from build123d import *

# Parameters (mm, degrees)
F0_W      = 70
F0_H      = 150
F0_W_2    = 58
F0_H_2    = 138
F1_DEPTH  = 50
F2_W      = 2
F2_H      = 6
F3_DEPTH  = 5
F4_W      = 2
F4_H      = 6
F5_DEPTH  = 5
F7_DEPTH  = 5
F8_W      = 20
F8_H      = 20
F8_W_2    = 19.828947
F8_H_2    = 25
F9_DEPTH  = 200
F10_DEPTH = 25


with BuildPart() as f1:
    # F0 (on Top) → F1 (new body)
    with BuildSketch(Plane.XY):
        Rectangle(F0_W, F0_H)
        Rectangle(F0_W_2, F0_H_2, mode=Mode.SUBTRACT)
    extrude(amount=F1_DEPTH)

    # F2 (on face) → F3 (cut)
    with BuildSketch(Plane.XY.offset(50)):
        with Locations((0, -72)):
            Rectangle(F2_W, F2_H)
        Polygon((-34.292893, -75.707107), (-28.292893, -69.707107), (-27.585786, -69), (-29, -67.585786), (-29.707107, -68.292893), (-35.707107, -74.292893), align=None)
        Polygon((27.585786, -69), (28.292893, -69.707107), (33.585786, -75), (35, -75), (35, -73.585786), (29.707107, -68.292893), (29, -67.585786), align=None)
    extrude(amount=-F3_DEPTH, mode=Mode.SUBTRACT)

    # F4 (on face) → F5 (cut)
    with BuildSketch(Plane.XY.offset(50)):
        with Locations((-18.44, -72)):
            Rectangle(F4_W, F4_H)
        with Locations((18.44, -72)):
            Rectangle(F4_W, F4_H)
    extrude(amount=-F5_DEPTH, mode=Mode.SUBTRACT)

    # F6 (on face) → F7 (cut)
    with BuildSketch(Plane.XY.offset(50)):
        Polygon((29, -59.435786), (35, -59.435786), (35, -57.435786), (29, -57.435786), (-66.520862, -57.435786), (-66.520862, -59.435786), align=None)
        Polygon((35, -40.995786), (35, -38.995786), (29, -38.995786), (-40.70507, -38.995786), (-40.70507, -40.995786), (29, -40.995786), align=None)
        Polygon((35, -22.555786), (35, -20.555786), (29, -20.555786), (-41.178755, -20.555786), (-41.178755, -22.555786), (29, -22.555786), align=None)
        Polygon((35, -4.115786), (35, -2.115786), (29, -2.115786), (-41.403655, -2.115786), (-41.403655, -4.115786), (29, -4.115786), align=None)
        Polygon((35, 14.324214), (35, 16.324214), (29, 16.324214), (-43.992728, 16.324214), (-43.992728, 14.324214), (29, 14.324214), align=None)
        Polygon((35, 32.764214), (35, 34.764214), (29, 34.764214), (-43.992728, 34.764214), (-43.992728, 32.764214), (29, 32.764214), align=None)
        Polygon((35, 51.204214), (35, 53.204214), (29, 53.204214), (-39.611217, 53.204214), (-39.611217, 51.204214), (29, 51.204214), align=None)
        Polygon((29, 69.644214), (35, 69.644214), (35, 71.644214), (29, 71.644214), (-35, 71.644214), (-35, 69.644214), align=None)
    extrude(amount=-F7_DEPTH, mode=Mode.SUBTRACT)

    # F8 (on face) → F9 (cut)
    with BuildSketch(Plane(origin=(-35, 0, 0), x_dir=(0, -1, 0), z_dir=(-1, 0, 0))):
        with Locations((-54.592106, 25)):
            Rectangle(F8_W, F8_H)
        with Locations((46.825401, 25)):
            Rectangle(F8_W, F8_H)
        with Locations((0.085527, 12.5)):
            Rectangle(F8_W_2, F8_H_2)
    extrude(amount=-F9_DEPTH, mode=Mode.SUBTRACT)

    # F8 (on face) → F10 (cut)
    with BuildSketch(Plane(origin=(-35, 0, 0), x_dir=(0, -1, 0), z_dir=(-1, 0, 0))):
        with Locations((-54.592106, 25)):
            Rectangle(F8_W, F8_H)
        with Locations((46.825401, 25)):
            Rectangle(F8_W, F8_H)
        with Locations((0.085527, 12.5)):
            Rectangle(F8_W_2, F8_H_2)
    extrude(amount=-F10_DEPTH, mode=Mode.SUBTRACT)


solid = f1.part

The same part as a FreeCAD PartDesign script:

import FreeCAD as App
import Part
import Sketcher
from FreeCAD import Vector


def add_polygon(sketch, points):
    """Adds a closed chain of lines whose ends are joined by coincident constraints."""
    first, n = sketch.GeometryCount, len(points)
    for a, b in zip(points, points[1:] + points[:1]):
        sketch.addGeometry(Part.LineSegment(App.Vector(*a, 0), App.Vector(*b, 0)), False)
    for i in range(n):
        sketch.addConstraint(Sketcher.Constraint("Coincident", first + i, 2, first + (i + 1) % n, 1))

doc = App.newDocument("Part")
body = doc.addObject("PartDesign::Body", "Body")

# Sketch on XY plane
sketch1 = doc.addObject("Sketcher::SketchObject", "Sketch")
body.addObject(sketch1)
sketch1.AttachmentSupport = (doc.XY_Plane, [""])
sketch1.MapMode = "FlatFace"
add_polygon(sketch1, [(-35, 75), (-35, -75), (35, -75), (35, 75)])  # lines 0-3
add_polygon(sketch1, [(29, -69), (-29, -69), (-29, 69), (29, 69)])  # lines 4-7
sketch1.addConstraint(Sketcher.Constraint("Vertical", 0))
sketch1.addConstraint(Sketcher.Constraint("Horizontal", 1))
sketch1.addConstraint(Sketcher.Constraint("Vertical", 2))
sketch1.addConstraint(Sketcher.Constraint("Horizontal", 3))
sketch1.addConstraint(Sketcher.Constraint("Horizontal", 4))
sketch1.addConstraint(Sketcher.Constraint("Vertical", 5))
sketch1.addConstraint(Sketcher.Constraint("Horizontal", 6))
sketch1.addConstraint(Sketcher.Constraint("Vertical", 7))
sketch1.addConstraint(Sketcher.Constraint("Symmetric", 0, 2, 2, 2, -1, 1))
sketch1.addConstraint(Sketcher.Constraint("Symmetric", 4, 2, 6, 2, -1, 1))
sketch1.addConstraint(Sketcher.Constraint("DistanceX", 1, 1, 1, 2, 70.0))
sketch1.addConstraint(Sketcher.Constraint("DistanceX", 4, 2, 4, 1, 58.0))
sketch1.addConstraint(Sketcher.Constraint("DistanceY", 0, 2, 0, 1, 150.0))
sketch1.addConstraint(Sketcher.Constraint("DistanceY", 5, 1, 5, 2, 138.0))
pad1 = doc.addObject("PartDesign::Pad", "Pad")
body.addObject(pad1)
pad1.Profile = sketch1
pad1.Length = 50

# Sketch on XY plane
sketch2 = doc.addObject("Sketcher::SketchObject", "Sketch001")
body.addObject(sketch2)
sketch2.AttachmentSupport = (doc.XY_Plane, [""])
sketch2.MapMode = "FlatFace"
sketch2.AttachmentOffset = App.Placement(Vector(0, 0, 50), App.Rotation())
add_polygon(sketch2, [(-1, -69), (-1, -75), (1, -75), (1, -69)])  # lines 0-3
add_polygon(sketch2, [(-34.3, -75.7), (-27.6, -69), (-29, -67.6), (-35.7, -74.3)])  # lines 4-7
add_polygon(sketch2, [(27.6, -69), (33.6, -75), (35, -75), (35, -73.6), (29, -67.6)])  # lines 8-12
sketch2.addConstraint(Sketcher.Constraint("Vertical", 0))
sketch2.addConstraint(Sketcher.Constraint("Horizontal", 1))
sketch2.addConstraint(Sketcher.Constraint("Vertical", 2))
sketch2.addConstraint(Sketcher.Constraint("Horizontal", 3))
sketch2.addConstraint(Sketcher.Constraint("Horizontal", 9))
sketch2.addConstraint(Sketcher.Constraint("Vertical", 10))
sketch2.addConstraint(Sketcher.Constraint("Symmetric", 5, 2, 11, 2, -2))
sketch2.addConstraint(Sketcher.Constraint("Symmetric", 4, 2, 12, 2, -2))
sketch2.addConstraint(Sketcher.Constraint("Perpendicular", 4, 5))
sketch2.addConstraint(Sketcher.Constraint("Perpendicular", 5, 6))
sketch2.addConstraint(Sketcher.Constraint("Perpendicular", 6, 7))
sketch2.addConstraint(Sketcher.Constraint("Parallel", 7, 8))
sketch2.addConstraint(Sketcher.Constraint("Parallel", 8, 11))
sketch2.addConstraint(Sketcher.Constraint("Perpendicular", 11, 12))
sketch2.addConstraint(Sketcher.Constraint("Horizontal", 3, 2, 4, 2))
sketch2.addConstraint(Sketcher.Constraint("Horizontal", 1, 2, 8, 2))
sketch2.addConstraint(Sketcher.Constraint("Equal", 9, 10))
sketch2.addConstraint(Sketcher.Constraint("DistanceX", 1, 1, 1, 2, 2.0))
sketch2.addConstraint(Sketcher.Constraint("DistanceY", 0, 2, 0, 1, 6.0))
sketch2.addConstraint(Sketcher.Constraint("Distance", 5, 2.000001))
sketch2.addConstraint(Sketcher.Constraint("DistanceX", 0, 2, -1, 1, 1.0))
sketch2.addConstraint(Sketcher.Constraint("DistanceY", 0, 2, -1, 1, 75.0))
sketch2.addConstraint(Sketcher.Constraint("DistanceX", 5, 2, -1, 1, 29.0))
sketch2.addConstraint(Sketcher.Constraint("Distance", 4, 9.485282))
pocket1 = doc.addObject("PartDesign::Pocket", "Pocket")
body.addObject(pocket1)
pocket1.Profile = sketch2
pocket1.Length = 5

# Sketch on XY plane
sketch3 = doc.addObject("Sketcher::SketchObject", "Sketch002")
body.addObject(sketch3)
sketch3.AttachmentSupport = (doc.XY_Plane, [""])
sketch3.MapMode = "FlatFace"
sketch3.AttachmentOffset = App.Placement(Vector(0, 0, 50), App.Rotation())
add_polygon(sketch3, [(-19.4, -69), (-19.4, -75), (-17.4, -75), (-17.4, -69)])  # lines 0-3
add_polygon(sketch3, [(17.4, -69), (17.4, -75), (19.4, -75), (19.4, -69)])  # lines 4-7
sketch3.addConstraint(Sketcher.Constraint("Vertical", 0))
sketch3.addConstraint(Sketcher.Constraint("Horizontal", 1))
sketch3.addConstraint(Sketcher.Constraint("Vertical", 2))
sketch3.addConstraint(Sketcher.Constraint("Horizontal", 3))
sketch3.addConstraint(Sketcher.Constraint("Vertical", 4))
sketch3.addConstraint(Sketcher.Constraint("Horizontal", 5))
sketch3.addConstraint(Sketcher.Constraint("Vertical", 6))
sketch3.addConstraint(Sketcher.Constraint("Horizontal", 7))
sketch3.addConstraint(Sketcher.Constraint("Symmetric", 1, 2, 4, 2, -2))
sketch3.addConstraint(Sketcher.Constraint("Symmetric", 3, 2, 6, 2, -2))
sketch3.addConstraint(Sketcher.Constraint("DistanceX", 1, 1, 1, 2, 2.0))
sketch3.addConstraint(Sketcher.Constraint("DistanceY", 0, 2, 0, 1, 6.0))
sketch3.addConstraint(Sketcher.Constraint("DistanceY", 0, 2, -1, 1, 75.0))
sketch3.addConstraint(Sketcher.Constraint("DistanceX", 0, 2, -1, 1, 19.44))
pocket2 = doc.addObject("PartDesign::Pocket", "Pocket001")
body.addObject(pocket2)
pocket2.Profile = sketch3
pocket2.Length = 5

# Sketch on XY plane
sketch4 = doc.addObject("Sketcher::SketchObject", "Sketch003")
body.addObject(sketch4)
sketch4.AttachmentSupport = (doc.XY_Plane, [""])
sketch4.MapMode = "FlatFace"
sketch4.AttachmentOffset = App.Placement(Vector(0, 0, 50), App.Rotation())
add_polygon(sketch4, [(35, -59.4), (35, -57.4), (-66.5, -57.4), (-66.5, -59.4)])  # lines 0-3
add_polygon(sketch4, [(35, -41), (35, -39), (-40.7, -39), (-40.7, -41)])  # lines 4-7
add_polygon(sketch4, [(35, -22.6), (35, -20.6), (-41.2, -20.6), (-41.2, -22.6)])  # lines 8-11
add_polygon(sketch4, [(35, -4.1), (35, -2.1), (-41.4, -2.1), (-41.4, -4.1)])  # lines 12-15
add_polygon(sketch4, [(35, 14.3), (35, 16.3), (-44, 16.3), (-44, 14.3)])  # lines 16-19
add_polygon(sketch4, [(35, 32.8), (35, 34.8), (-44, 34.8), (-44, 32.8)])  # lines 20-23
add_polygon(sketch4, [(35, 51.2), (35, 53.2), (-39.6, 53.2), (-39.6, 51.2)])  # lines 24-27
add_polygon(sketch4, [(35, 69.6), (35, 71.6), (-35, 71.6), (-35, 69.6)])  # lines 28-31
sketch4.addConstraint(Sketcher.Constraint("Vertical", 0))
sketch4.addConstraint(Sketcher.Constraint("Horizontal", 1))
sketch4.addConstraint(Sketcher.Constraint("Vertical", 2))
sketch4.addConstraint(Sketcher.Constraint("Horizontal", 3))
sketch4.addConstraint(Sketcher.Constraint("Vertical", 4))
sketch4.addConstraint(Sketcher.Constraint("Horizontal", 5))
sketch4.addConstraint(Sketcher.Constraint("Vertical", 6))
sketch4.addConstraint(Sketcher.Constraint("Horizontal", 7))
sketch4.addConstraint(Sketcher.Constraint("Vertical", 8))
sketch4.addConstraint(Sketcher.Constraint("Horizontal", 9))
sketch4.addConstraint(Sketcher.Constraint("Vertical", 10))
sketch4.addConstraint(Sketcher.Constraint("Horizontal", 11))
sketch4.addConstraint(Sketcher.Constraint("Vertical", 12))
sketch4.addConstraint(Sketcher.Constraint("Horizontal", 13))
sketch4.addConstraint(Sketcher.Constraint("Vertical", 14))
sketch4.addConstraint(Sketcher.Constraint("Horizontal", 15))
sketch4.addConstraint(Sketcher.Constraint("Vertical", 16))
sketch4.addConstraint(Sketcher.Constraint("Horizontal", 17))
sketch4.addConstraint(Sketcher.Constraint("Vertical", 18))
sketch4.addConstraint(Sketcher.Constraint("Horizontal", 19))
sketch4.addConstraint(Sketcher.Constraint("Vertical", 20))
sketch4.addConstraint(Sketcher.Constraint("Horizontal", 21))
sketch4.addConstraint(Sketcher.Constraint("Vertical", 22))
sketch4.addConstraint(Sketcher.Constraint("Horizontal", 23))
sketch4.addConstraint(Sketcher.Constraint("Vertical", 24))
sketch4.addConstraint(Sketcher.Constraint("Horizontal", 25))
sketch4.addConstraint(Sketcher.Constraint("Vertical", 26))
sketch4.addConstraint(Sketcher.Constraint("Horizontal", 27))
sketch4.addConstraint(Sketcher.Constraint("Vertical", 28))
sketch4.addConstraint(Sketcher.Constraint("Horizontal", 29))
sketch4.addConstraint(Sketcher.Constraint("Vertical", 30))
sketch4.addConstraint(Sketcher.Constraint("Horizontal", 31))
sketch4.addConstraint(Sketcher.Constraint("Vertical", 3, 2, 4, 2))
sketch4.addConstraint(Sketcher.Constraint("Vertical", 7, 2, 8, 2))
sketch4.addConstraint(Sketcher.Constraint("Vertical", 11, 2, 12, 2))
sketch4.addConstraint(Sketcher.Constraint("Vertical", 15, 2, 16, 2))
sketch4.addConstraint(Sketcher.Constraint("Vertical", 19, 2, 20, 2))
sketch4.addConstraint(Sketcher.Constraint("Vertical", 18, 2, 21, 2))
sketch4.addConstraint(Sketcher.Constraint("Vertical", 23, 2, 24, 2))
sketch4.addConstraint(Sketcher.Constraint("Vertical", 27, 2, 28, 2))
sketch4.addConstraint(Sketcher.Constraint("Equal", 2, 4))
sketch4.addConstraint(Sketcher.Constraint("Equal", 6, 8))
sketch4.addConstraint(Sketcher.Constraint("Equal", 10, 12))
sketch4.addConstraint(Sketcher.Constraint("Equal", 14, 16))
sketch4.addConstraint(Sketcher.Constraint("Equal", 18, 20))
sketch4.addConstraint(Sketcher.Constraint("Equal", 22, 24))
sketch4.addConstraint(Sketcher.Constraint("Equal", 26, 28))
sketch4.addConstraint(Sketcher.Constraint("DistanceX", 29, 2, 29, 1, 70.0))
sketch4.addConstraint(Sketcher.Constraint("DistanceY", 0, 1, 0, 2, 2.0))
sketch4.addConstraint(Sketcher.Constraint("DistanceX", -1, 1, 0, 2, 35.0))
sketch4.addConstraint(Sketcher.Constraint("DistanceY", 0, 2, 4, 2, 18.44))
sketch4.addConstraint(Sketcher.Constraint("DistanceY", 4, 2, 8, 2, 18.44))
sketch4.addConstraint(Sketcher.Constraint("DistanceY", 8, 2, 12, 2, 18.44))
sketch4.addConstraint(Sketcher.Constraint("DistanceY", 12, 2, 16, 2, 18.44))
sketch4.addConstraint(Sketcher.Constraint("DistanceY", 16, 2, 20, 2, 18.44))
sketch4.addConstraint(Sketcher.Constraint("DistanceY", 20, 2, 24, 2, 18.44))
sketch4.addConstraint(Sketcher.Constraint("DistanceY", 24, 2, 28, 2, 18.44))
sketch4.addConstraint(Sketcher.Constraint("DistanceX", 1, 2, 1, 1, 101.520862))
sketch4.addConstraint(Sketcher.Constraint("DistanceX", 5, 2, 5, 1, 75.70507))
sketch4.addConstraint(Sketcher.Constraint("DistanceX", 17, 2, 17, 1, 78.992728))
sketch4.addConstraint(Sketcher.Constraint("DistanceX", 13, 2, 9, 2, 0.2249))
sketch4.addConstraint(Sketcher.Constraint("DistanceX", 9, 2, 9, 1, 76.178755))
sketch4.addConstraint(Sketcher.Constraint("DistanceX", 25, 2, 25, 1, 74.611217))
sketch4.addConstraint(Sketcher.Constraint("DistanceY", 0, 2, -1, 1, 57.435786))
pocket3 = doc.addObject("PartDesign::Pocket", "Pocket002")
body.addObject(pocket3)
pocket3.Profile = sketch4
pocket3.Length = 5

# Sketch on YZ plane
sketch5 = doc.addObject("Sketcher::SketchObject", "Sketch004")
body.addObject(sketch5)
sketch5.AttachmentSupport = (doc.YZ_Plane, [""])
sketch5.MapMode = "FlatFace"
sketch5.AttachmentOffset = App.Placement(Vector(0, 0, -35), App.Rotation())
add_polygon(sketch5, [(65, 35), (65, 15), (45, 15), (45, 35)])  # lines 0-3
add_polygon(sketch5, [(-37, 35), (-37, 15), (-57, 15), (-57, 35)])  # lines 4-7
add_polygon(sketch5, [(10, 25), (10, 0), (-10, 0), (-10, 25)])  # lines 8-11
sketch5.addConstraint(Sketcher.Constraint("Vertical", 0))
sketch5.addConstraint(Sketcher.Constraint("Horizontal", 1))
sketch5.addConstraint(Sketcher.Constraint("Vertical", 2))
sketch5.addConstraint(Sketcher.Constraint("Horizontal", 3))
sketch5.addConstraint(Sketcher.Constraint("Vertical", 4))
sketch5.addConstraint(Sketcher.Constraint("Horizontal", 5))
sketch5.addConstraint(Sketcher.Constraint("Vertical", 6))
sketch5.addConstraint(Sketcher.Constraint("Horizontal", 7))
sketch5.addConstraint(Sketcher.Constraint("Vertical", 8))
sketch5.addConstraint(Sketcher.Constraint("Horizontal", 9))
sketch5.addConstraint(Sketcher.Constraint("Vertical", 10))
sketch5.addConstraint(Sketcher.Constraint("Horizontal", 11))
sketch5.addConstraint(Sketcher.Constraint("PointOnObject", 8, 2, -1))
sketch5.addConstraint(Sketcher.Constraint("Horizontal", 1, 2, 4, 2))
sketch5.addConstraint(Sketcher.Constraint("Horizontal", 3, 2, 6, 2))
sketch5.addConstraint(Sketcher.Constraint("Equal", 3, 5))
sketch5.addConstraint(Sketcher.Constraint("Equal", 7, 0))
sketch5.addConstraint(Sketcher.Constraint("DistanceX", 1, 2, 1, 1, 20.0))
sketch5.addConstraint(Sketcher.Constraint("DistanceY", 8, 2, 8, 1, 25.0))
sketch5.addConstraint(Sketcher.Constraint("DistanceY", -1, 1, 0, 2, 15.0))
sketch5.addConstraint(Sketcher.Constraint("DistanceX", 9, 2, -1, 1, 10.000001))
sketch5.addConstraint(Sketcher.Constraint("DistanceX", 4, 2, -1, 1, 36.825401))
sketch5.addConstraint(Sketcher.Constraint("DistanceX", 9, 2, 9, 1, 19.828947))
sketch5.addConstraint(Sketcher.Constraint("DistanceX", 8, 2, 1, 2, 34.76316))
pocket4 = doc.addObject("PartDesign::Pocket", "Pocket003")
body.addObject(pocket4)
pocket4.Profile = sketch5
pocket4.Length = 200
pocket4.Reversed = True

# Sketch on YZ plane
sketch6 = doc.addObject("Sketcher::SketchObject", "Sketch005")
body.addObject(sketch6)
sketch6.AttachmentSupport = (doc.YZ_Plane, [""])
sketch6.MapMode = "FlatFace"
sketch6.AttachmentOffset = App.Placement(Vector(0, 0, -35), App.Rotation())
add_polygon(sketch6, [(65, 35), (65, 15), (45, 15), (45, 35)])  # lines 0-3
add_polygon(sketch6, [(-37, 35), (-37, 15), (-57, 15), (-57, 35)])  # lines 4-7
add_polygon(sketch6, [(10, 25), (10, 0), (-10, 0), (-10, 25)])  # lines 8-11
sketch6.addConstraint(Sketcher.Constraint("Vertical", 0))
sketch6.addConstraint(Sketcher.Constraint("Horizontal", 1))
sketch6.addConstraint(Sketcher.Constraint("Vertical", 2))
sketch6.addConstraint(Sketcher.Constraint("Horizontal", 3))
sketch6.addConstraint(Sketcher.Constraint("Vertical", 4))
sketch6.addConstraint(Sketcher.Constraint("Horizontal", 5))
sketch6.addConstraint(Sketcher.Constraint("Vertical", 6))
sketch6.addConstraint(Sketcher.Constraint("Horizontal", 7))
sketch6.addConstraint(Sketcher.Constraint("Vertical", 8))
sketch6.addConstraint(Sketcher.Constraint("Horizontal", 9))
sketch6.addConstraint(Sketcher.Constraint("Vertical", 10))
sketch6.addConstraint(Sketcher.Constraint("Horizontal", 11))
sketch6.addConstraint(Sketcher.Constraint("PointOnObject", 8, 2, -1))
sketch6.addConstraint(Sketcher.Constraint("Horizontal", 1, 2, 4, 2))
sketch6.addConstraint(Sketcher.Constraint("Horizontal", 3, 2, 6, 2))
sketch6.addConstraint(Sketcher.Constraint("Equal", 3, 5))
sketch6.addConstraint(Sketcher.Constraint("Equal", 7, 0))
sketch6.addConstraint(Sketcher.Constraint("DistanceX", 1, 2, 1, 1, 20.0))
sketch6.addConstraint(Sketcher.Constraint("DistanceY", 8, 2, 8, 1, 25.0))
sketch6.addConstraint(Sketcher.Constraint("DistanceY", -1, 1, 0, 2, 15.0))
sketch6.addConstraint(Sketcher.Constraint("DistanceX", 9, 2, -1, 1, 10.000001))
sketch6.addConstraint(Sketcher.Constraint("DistanceX", 4, 2, -1, 1, 36.825401))
sketch6.addConstraint(Sketcher.Constraint("DistanceX", 9, 2, 9, 1, 19.828947))
sketch6.addConstraint(Sketcher.Constraint("DistanceX", 8, 2, 1, 2, 34.76316))
pocket5 = doc.addObject("PartDesign::Pocket", "Pocket004")
body.addObject(pocket5)
pocket5.Profile = sketch6
pocket5.Length = 25
pocket5.Reversed = True

doc.recompute()
